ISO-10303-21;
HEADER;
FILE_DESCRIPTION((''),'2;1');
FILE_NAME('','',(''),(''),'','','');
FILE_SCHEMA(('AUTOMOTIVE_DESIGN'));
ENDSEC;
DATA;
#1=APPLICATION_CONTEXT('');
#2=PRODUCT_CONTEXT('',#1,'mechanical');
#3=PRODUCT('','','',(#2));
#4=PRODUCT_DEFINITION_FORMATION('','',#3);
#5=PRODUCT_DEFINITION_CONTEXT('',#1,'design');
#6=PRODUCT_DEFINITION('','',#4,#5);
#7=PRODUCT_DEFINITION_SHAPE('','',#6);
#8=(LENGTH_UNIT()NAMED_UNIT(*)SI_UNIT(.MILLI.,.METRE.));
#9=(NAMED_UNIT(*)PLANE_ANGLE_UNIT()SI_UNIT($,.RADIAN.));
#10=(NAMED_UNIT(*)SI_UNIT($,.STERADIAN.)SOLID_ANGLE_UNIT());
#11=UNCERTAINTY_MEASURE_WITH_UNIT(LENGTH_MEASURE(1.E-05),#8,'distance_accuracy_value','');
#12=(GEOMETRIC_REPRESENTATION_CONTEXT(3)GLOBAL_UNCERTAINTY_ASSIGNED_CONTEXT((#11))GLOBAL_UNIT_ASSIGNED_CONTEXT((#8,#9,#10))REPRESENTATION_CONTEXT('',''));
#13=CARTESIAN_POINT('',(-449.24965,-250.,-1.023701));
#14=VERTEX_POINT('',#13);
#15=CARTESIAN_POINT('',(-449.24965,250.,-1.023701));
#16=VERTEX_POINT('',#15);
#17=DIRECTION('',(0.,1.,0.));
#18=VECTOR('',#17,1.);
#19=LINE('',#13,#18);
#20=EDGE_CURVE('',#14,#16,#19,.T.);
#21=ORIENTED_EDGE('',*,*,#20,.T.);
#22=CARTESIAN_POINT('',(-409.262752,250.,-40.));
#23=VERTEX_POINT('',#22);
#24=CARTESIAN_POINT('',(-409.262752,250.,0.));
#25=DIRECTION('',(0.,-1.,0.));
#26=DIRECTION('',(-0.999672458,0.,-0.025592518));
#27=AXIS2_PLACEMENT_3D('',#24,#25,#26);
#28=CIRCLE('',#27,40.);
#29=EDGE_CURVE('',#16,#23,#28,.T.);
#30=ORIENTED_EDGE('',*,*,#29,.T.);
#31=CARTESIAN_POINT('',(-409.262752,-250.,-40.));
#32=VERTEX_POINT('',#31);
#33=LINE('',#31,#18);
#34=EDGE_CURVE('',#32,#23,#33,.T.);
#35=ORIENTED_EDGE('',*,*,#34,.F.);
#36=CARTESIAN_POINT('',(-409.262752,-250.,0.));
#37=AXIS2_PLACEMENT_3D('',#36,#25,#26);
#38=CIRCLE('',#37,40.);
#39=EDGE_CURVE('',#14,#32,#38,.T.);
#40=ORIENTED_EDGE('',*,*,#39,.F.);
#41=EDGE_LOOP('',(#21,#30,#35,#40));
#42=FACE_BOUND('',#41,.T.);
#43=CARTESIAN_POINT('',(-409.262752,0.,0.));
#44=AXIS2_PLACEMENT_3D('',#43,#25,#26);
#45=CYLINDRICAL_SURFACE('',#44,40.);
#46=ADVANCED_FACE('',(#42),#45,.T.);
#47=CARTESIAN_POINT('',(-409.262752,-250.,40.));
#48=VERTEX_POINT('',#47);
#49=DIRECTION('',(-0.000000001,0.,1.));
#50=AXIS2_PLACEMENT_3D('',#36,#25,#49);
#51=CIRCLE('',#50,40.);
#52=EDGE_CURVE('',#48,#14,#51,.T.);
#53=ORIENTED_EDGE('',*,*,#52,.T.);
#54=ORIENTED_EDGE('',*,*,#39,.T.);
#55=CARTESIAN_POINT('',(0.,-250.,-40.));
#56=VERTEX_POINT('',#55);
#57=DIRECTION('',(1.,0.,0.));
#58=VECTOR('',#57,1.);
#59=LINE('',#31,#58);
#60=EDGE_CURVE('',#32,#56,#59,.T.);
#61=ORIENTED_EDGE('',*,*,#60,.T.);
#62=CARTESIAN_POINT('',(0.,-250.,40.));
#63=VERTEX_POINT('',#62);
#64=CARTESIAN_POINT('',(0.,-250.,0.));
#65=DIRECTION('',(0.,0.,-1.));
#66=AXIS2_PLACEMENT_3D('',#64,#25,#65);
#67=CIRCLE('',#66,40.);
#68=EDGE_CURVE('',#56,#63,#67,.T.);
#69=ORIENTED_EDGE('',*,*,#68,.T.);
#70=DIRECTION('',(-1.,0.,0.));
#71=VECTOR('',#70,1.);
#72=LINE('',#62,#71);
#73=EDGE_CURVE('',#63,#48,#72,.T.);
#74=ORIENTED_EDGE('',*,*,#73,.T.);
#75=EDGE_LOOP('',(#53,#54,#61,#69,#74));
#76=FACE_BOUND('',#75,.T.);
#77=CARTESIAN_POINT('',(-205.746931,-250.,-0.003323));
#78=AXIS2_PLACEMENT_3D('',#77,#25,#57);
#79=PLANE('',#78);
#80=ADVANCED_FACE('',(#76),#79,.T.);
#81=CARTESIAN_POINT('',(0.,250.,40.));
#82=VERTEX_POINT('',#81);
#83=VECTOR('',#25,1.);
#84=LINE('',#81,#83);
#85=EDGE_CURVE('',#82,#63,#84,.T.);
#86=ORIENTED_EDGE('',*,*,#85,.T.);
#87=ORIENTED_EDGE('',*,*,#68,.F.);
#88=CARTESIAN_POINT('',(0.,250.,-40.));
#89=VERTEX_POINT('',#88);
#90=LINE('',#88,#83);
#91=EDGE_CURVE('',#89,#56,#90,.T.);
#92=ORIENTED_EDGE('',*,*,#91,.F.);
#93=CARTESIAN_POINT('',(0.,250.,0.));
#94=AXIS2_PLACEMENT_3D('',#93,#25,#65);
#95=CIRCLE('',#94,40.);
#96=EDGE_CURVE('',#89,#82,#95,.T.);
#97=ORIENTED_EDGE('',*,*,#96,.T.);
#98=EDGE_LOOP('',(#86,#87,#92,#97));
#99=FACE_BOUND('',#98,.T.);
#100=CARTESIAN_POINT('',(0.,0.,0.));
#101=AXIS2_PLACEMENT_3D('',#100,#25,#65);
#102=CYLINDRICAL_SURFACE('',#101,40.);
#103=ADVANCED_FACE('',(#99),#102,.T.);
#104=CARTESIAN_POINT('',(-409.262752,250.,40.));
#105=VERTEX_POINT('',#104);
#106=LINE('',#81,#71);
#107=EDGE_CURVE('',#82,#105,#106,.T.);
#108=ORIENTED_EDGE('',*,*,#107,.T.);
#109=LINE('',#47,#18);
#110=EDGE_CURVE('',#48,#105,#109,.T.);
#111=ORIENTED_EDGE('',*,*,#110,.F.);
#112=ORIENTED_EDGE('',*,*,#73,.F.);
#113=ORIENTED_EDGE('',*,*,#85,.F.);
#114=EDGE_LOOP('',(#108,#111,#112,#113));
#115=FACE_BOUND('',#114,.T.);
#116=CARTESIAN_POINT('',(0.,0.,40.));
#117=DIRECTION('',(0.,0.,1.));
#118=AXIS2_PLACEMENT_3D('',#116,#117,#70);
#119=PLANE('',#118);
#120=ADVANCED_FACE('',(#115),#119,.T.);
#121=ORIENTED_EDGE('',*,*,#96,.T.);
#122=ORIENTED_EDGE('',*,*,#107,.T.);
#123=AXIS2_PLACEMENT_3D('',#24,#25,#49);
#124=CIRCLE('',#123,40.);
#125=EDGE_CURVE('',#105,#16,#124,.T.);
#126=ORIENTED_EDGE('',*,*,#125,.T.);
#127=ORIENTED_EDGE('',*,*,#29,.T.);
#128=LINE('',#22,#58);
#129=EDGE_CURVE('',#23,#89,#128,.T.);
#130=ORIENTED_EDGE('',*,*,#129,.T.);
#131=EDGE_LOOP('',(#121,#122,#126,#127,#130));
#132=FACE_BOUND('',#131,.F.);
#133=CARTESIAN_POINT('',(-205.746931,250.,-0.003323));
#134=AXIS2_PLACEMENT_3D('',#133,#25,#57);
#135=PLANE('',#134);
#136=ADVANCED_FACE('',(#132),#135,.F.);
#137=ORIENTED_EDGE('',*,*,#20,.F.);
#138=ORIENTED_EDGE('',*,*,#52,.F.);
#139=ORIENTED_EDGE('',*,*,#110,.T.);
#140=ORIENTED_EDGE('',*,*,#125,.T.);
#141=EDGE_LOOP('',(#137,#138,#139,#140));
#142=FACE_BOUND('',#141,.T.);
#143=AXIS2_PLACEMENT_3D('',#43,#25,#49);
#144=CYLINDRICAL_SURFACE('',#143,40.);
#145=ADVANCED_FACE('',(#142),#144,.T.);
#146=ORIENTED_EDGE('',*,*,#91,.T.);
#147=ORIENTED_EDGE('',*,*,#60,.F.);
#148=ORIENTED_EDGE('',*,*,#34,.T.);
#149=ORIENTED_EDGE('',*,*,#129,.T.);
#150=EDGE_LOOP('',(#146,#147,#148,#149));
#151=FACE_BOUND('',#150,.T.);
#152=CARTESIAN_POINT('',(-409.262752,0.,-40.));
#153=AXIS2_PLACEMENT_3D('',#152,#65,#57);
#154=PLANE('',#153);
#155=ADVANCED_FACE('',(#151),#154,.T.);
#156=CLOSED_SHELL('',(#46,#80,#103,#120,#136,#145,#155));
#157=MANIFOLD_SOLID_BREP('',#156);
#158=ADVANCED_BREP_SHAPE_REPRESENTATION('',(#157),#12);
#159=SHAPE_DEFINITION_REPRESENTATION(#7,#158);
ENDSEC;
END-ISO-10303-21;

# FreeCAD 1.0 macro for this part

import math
import FreeCAD as App
import Part
import Sketcher
from FreeCAD import Vector

doc = App.newDocument("Part")
params = doc.addObject("Spreadsheet::Sheet", "Params")
for row, (alias, value) in enumerate([
    ("sketch1_radius", "40 mm"),
    ("pad1_length", "500 mm"),
], start=1):
    params.set(f"A{row}", alias)
    params.set(f"B{row}", "=" + value)
    params.setAlias(f"B{row}", alias)

body = doc.addObject("PartDesign::Body", "Body")

# Sketch on XZ plane
sketch1 = body.newObject("Sketcher::SketchObject", "Sketch")
sketch1.AttachmentSupport = (doc.getObject("XZ_Plane"), [""])
sketch1.MapMode = "FlatFace"
sketch1.addGeometry(Part.LineSegment(Vector(-409, -40, 0), Vector(0, -40, 0)), False)
sketch1.addGeometry(Part.ArcOfCircle(Part.Circle(Vector(0, 0, 0), Vector(0, 0, 1), 40), math.radians(-90), math.radians(90)), False)
sketch1.addGeometry(Part.LineSegment(Vector(0, 40, 0), Vector(-409, 40, 0)), False)
sketch1.addGeometry(Part.ArcOfCircle(Part.Circle(Vector(-409, 0, 0), Vector(0, 0, 1), 40), math.radians(90), math.radians(181)), False)
sketch1.addGeometry(Part.ArcOfCircle(Part.Circle(Vector(-409, 0, 0), Vector(0, 0, 1), 40), math.radians(-179), math.radians(-90)), False)
sketch1.addConstraint(Sketcher.Constraint("Tangent", 0, 2, 1, 1))
sketch1.addConstraint(Sketcher.Constraint("Tangent", 1, 2, 2, 1))
sketch1.addConstraint(Sketcher.Constraint("Tangent", 2, 2, 3, 1))
sketch1.addConstraint(Sketcher.Constraint("Tangent", 3, 2, 4, 1))
sketch1.addConstraint(Sketcher.Constraint("Tangent", 4, 2, 0, 1))
sketch1.addConstraint(Sketcher.Constraint("Horizontal", 0))
sketch1.addConstraint(Sketcher.Constraint("Horizontal", 2))
sketch1.addConstraint(Sketcher.Constraint("Coincident", 1, 3, -1, 1))
sketch1.addConstraint(Sketcher.Constraint("Equal", 1, 3))
sketch1.addConstraint(Sketcher.Constraint("Radius", 1, 40.0))
sketch1.addConstraint(Sketcher.Constraint("DistanceX", 0, 1, 0, 2, 409.262752))
sketch1.addConstraint(Sketcher.Constraint("DistanceY", 3, 2, -1, 1, 1.023701))
sketch1.setExpression("Constraints[9]", "Params.sketch1_radius")
pad1 = body.newObject("PartDesign::Pad", "Pad")
pad1.Profile = sketch1
pad1.setExpression("Length", "Params.pad1_length")
pad1.Midplane = True

doc.recompute()
